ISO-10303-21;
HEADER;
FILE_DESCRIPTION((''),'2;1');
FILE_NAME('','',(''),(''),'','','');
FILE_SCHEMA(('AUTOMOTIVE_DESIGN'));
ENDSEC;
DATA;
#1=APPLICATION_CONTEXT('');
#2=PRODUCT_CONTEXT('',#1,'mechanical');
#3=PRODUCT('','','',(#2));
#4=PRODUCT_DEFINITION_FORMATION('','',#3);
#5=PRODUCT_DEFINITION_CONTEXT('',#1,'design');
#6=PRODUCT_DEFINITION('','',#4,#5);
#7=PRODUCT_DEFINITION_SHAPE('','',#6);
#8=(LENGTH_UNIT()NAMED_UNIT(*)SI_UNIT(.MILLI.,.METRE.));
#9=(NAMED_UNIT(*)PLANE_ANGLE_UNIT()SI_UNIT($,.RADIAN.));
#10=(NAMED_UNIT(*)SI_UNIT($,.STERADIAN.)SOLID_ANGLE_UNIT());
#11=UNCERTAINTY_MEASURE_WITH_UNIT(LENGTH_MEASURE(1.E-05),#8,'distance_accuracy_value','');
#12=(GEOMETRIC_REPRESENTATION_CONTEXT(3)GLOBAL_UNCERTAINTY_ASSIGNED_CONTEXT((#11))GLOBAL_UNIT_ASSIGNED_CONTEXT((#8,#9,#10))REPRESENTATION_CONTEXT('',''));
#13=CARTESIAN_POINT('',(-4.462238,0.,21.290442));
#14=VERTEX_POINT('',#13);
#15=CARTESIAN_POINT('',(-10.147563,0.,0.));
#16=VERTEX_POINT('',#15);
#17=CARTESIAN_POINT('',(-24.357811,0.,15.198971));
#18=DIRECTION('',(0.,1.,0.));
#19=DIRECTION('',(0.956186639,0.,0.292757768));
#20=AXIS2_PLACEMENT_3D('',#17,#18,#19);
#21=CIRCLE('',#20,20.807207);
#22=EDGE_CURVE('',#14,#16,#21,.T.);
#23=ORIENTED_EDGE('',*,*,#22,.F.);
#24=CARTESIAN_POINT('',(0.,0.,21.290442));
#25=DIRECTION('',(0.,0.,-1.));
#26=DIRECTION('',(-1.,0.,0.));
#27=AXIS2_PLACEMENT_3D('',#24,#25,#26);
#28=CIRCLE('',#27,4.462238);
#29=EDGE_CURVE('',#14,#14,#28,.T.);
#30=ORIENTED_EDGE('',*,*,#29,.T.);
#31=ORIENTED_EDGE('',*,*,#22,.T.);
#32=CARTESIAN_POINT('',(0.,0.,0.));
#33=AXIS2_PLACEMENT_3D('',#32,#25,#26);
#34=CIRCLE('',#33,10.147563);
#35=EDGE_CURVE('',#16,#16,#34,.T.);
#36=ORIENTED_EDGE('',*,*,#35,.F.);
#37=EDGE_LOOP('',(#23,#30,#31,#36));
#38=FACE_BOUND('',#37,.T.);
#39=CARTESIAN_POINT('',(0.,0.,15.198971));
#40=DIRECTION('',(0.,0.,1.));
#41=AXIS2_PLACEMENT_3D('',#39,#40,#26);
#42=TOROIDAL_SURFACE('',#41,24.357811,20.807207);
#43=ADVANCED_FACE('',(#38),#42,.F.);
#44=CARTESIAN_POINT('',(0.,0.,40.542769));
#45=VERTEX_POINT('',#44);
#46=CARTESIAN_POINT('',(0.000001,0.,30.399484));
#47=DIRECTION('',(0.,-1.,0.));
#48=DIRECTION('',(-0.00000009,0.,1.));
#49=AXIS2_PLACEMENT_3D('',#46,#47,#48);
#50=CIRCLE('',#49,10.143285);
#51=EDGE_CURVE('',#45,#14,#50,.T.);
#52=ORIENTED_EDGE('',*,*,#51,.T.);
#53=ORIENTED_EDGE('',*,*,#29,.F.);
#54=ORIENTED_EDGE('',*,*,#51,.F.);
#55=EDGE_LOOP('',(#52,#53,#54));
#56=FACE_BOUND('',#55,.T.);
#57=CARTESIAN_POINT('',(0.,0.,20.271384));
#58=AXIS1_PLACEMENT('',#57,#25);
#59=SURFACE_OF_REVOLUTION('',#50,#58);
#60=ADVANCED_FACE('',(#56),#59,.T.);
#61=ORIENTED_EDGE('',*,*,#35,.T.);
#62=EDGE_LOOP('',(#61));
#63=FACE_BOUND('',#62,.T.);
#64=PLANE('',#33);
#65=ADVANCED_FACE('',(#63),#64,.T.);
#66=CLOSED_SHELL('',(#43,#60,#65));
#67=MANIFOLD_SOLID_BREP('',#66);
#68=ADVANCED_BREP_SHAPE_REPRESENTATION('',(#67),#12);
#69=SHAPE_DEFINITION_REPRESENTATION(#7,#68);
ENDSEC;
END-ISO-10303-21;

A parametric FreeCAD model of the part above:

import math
import FreeCAD as App
import Part
import Sketcher
from FreeCAD import Vector
Q = App.Units.Quantity

doc = App.newDocument("Part")
body = doc.addObject("PartDesign::Body", "Body")

sketch1 = doc.addObject("Sketcher::SketchObject", "Sketch")
body.addObject(sketch1)
sketch1.AttachmentSupport = (doc.XZ_Plane, [""])
sketch1.MapMode = "FlatFace"
sketch1.addGeometry(Part.LineSegment(Vector(-10, 0, 0), Vector(0, 0, 0)), False)
sketch1.addGeometry(Part.LineSegment(Vector(0, 0, 0), Vector(0, 41, 0)), False)
sketch1.addGeometry(Part.ArcOfCircle(Part.Circle(Vector(0, 30, 0), Vector(0, 0, 1), 10), math.radians(90), math.radians(244)), False)
sketch1.addGeometry(Part.ArcOfCircle(Part.Circle(Vector(-24, 15, 0), Vector(0, 0, 1), 21), math.radians(-47), math.radians(17)), False)
sketch1.addConstraint(Sketcher.Constraint("Coincident", 0, 2, 1, 1))
sketch1.addConstraint(Sketcher.Constraint("Coincident", 1, 2, 2, 1))
sketch1.addConstraint(Sketcher.Constraint("Coincident", 2, 2, 3, 2))
sketch1.addConstraint(Sketcher.Constraint("Coincident", 3, 1, 0, 1))
sketch1.addConstraint(Sketcher.Constraint("Horizontal", 0))
sketch1.addConstraint(Sketcher.Constraint("Vertical", 1))
sketch1.addConstraint(Sketcher.Constraint("Coincident", 0, 2, -1, 1))
sketch1.addConstraint(Sketcher.Constraint("PointOnObject", 2, 3, -2))
sketch1.addConstraint(Sketcher.Constraint("Radius", 2, Q("10.143285 mm")))
sketch1.addConstraint(Sketcher.Constraint("Radius", 3, Q("20.807207 mm")))
sketch1.addConstraint(Sketcher.Constraint("DistanceY", 1, 1, 1, 2, Q("40.542769 mm")))
sketch1.addConstraint(Sketcher.Constraint("DistanceY", 3, 3, 1, 2, Q("25.343798 mm")))
sketch1.addConstraint(Sketcher.Constraint("DistanceX", 0, 1, 0, 2, Q("10.147563 mm")))
revolution = doc.addObject("PartDesign::Revolution", "Revolution")
body.addObject(revolution)
revolution.Profile = sketch1
revolution.ReferenceAxis = (sketch1, ["V_Axis"])
revolution.Angle = 360

doc.recompute()
